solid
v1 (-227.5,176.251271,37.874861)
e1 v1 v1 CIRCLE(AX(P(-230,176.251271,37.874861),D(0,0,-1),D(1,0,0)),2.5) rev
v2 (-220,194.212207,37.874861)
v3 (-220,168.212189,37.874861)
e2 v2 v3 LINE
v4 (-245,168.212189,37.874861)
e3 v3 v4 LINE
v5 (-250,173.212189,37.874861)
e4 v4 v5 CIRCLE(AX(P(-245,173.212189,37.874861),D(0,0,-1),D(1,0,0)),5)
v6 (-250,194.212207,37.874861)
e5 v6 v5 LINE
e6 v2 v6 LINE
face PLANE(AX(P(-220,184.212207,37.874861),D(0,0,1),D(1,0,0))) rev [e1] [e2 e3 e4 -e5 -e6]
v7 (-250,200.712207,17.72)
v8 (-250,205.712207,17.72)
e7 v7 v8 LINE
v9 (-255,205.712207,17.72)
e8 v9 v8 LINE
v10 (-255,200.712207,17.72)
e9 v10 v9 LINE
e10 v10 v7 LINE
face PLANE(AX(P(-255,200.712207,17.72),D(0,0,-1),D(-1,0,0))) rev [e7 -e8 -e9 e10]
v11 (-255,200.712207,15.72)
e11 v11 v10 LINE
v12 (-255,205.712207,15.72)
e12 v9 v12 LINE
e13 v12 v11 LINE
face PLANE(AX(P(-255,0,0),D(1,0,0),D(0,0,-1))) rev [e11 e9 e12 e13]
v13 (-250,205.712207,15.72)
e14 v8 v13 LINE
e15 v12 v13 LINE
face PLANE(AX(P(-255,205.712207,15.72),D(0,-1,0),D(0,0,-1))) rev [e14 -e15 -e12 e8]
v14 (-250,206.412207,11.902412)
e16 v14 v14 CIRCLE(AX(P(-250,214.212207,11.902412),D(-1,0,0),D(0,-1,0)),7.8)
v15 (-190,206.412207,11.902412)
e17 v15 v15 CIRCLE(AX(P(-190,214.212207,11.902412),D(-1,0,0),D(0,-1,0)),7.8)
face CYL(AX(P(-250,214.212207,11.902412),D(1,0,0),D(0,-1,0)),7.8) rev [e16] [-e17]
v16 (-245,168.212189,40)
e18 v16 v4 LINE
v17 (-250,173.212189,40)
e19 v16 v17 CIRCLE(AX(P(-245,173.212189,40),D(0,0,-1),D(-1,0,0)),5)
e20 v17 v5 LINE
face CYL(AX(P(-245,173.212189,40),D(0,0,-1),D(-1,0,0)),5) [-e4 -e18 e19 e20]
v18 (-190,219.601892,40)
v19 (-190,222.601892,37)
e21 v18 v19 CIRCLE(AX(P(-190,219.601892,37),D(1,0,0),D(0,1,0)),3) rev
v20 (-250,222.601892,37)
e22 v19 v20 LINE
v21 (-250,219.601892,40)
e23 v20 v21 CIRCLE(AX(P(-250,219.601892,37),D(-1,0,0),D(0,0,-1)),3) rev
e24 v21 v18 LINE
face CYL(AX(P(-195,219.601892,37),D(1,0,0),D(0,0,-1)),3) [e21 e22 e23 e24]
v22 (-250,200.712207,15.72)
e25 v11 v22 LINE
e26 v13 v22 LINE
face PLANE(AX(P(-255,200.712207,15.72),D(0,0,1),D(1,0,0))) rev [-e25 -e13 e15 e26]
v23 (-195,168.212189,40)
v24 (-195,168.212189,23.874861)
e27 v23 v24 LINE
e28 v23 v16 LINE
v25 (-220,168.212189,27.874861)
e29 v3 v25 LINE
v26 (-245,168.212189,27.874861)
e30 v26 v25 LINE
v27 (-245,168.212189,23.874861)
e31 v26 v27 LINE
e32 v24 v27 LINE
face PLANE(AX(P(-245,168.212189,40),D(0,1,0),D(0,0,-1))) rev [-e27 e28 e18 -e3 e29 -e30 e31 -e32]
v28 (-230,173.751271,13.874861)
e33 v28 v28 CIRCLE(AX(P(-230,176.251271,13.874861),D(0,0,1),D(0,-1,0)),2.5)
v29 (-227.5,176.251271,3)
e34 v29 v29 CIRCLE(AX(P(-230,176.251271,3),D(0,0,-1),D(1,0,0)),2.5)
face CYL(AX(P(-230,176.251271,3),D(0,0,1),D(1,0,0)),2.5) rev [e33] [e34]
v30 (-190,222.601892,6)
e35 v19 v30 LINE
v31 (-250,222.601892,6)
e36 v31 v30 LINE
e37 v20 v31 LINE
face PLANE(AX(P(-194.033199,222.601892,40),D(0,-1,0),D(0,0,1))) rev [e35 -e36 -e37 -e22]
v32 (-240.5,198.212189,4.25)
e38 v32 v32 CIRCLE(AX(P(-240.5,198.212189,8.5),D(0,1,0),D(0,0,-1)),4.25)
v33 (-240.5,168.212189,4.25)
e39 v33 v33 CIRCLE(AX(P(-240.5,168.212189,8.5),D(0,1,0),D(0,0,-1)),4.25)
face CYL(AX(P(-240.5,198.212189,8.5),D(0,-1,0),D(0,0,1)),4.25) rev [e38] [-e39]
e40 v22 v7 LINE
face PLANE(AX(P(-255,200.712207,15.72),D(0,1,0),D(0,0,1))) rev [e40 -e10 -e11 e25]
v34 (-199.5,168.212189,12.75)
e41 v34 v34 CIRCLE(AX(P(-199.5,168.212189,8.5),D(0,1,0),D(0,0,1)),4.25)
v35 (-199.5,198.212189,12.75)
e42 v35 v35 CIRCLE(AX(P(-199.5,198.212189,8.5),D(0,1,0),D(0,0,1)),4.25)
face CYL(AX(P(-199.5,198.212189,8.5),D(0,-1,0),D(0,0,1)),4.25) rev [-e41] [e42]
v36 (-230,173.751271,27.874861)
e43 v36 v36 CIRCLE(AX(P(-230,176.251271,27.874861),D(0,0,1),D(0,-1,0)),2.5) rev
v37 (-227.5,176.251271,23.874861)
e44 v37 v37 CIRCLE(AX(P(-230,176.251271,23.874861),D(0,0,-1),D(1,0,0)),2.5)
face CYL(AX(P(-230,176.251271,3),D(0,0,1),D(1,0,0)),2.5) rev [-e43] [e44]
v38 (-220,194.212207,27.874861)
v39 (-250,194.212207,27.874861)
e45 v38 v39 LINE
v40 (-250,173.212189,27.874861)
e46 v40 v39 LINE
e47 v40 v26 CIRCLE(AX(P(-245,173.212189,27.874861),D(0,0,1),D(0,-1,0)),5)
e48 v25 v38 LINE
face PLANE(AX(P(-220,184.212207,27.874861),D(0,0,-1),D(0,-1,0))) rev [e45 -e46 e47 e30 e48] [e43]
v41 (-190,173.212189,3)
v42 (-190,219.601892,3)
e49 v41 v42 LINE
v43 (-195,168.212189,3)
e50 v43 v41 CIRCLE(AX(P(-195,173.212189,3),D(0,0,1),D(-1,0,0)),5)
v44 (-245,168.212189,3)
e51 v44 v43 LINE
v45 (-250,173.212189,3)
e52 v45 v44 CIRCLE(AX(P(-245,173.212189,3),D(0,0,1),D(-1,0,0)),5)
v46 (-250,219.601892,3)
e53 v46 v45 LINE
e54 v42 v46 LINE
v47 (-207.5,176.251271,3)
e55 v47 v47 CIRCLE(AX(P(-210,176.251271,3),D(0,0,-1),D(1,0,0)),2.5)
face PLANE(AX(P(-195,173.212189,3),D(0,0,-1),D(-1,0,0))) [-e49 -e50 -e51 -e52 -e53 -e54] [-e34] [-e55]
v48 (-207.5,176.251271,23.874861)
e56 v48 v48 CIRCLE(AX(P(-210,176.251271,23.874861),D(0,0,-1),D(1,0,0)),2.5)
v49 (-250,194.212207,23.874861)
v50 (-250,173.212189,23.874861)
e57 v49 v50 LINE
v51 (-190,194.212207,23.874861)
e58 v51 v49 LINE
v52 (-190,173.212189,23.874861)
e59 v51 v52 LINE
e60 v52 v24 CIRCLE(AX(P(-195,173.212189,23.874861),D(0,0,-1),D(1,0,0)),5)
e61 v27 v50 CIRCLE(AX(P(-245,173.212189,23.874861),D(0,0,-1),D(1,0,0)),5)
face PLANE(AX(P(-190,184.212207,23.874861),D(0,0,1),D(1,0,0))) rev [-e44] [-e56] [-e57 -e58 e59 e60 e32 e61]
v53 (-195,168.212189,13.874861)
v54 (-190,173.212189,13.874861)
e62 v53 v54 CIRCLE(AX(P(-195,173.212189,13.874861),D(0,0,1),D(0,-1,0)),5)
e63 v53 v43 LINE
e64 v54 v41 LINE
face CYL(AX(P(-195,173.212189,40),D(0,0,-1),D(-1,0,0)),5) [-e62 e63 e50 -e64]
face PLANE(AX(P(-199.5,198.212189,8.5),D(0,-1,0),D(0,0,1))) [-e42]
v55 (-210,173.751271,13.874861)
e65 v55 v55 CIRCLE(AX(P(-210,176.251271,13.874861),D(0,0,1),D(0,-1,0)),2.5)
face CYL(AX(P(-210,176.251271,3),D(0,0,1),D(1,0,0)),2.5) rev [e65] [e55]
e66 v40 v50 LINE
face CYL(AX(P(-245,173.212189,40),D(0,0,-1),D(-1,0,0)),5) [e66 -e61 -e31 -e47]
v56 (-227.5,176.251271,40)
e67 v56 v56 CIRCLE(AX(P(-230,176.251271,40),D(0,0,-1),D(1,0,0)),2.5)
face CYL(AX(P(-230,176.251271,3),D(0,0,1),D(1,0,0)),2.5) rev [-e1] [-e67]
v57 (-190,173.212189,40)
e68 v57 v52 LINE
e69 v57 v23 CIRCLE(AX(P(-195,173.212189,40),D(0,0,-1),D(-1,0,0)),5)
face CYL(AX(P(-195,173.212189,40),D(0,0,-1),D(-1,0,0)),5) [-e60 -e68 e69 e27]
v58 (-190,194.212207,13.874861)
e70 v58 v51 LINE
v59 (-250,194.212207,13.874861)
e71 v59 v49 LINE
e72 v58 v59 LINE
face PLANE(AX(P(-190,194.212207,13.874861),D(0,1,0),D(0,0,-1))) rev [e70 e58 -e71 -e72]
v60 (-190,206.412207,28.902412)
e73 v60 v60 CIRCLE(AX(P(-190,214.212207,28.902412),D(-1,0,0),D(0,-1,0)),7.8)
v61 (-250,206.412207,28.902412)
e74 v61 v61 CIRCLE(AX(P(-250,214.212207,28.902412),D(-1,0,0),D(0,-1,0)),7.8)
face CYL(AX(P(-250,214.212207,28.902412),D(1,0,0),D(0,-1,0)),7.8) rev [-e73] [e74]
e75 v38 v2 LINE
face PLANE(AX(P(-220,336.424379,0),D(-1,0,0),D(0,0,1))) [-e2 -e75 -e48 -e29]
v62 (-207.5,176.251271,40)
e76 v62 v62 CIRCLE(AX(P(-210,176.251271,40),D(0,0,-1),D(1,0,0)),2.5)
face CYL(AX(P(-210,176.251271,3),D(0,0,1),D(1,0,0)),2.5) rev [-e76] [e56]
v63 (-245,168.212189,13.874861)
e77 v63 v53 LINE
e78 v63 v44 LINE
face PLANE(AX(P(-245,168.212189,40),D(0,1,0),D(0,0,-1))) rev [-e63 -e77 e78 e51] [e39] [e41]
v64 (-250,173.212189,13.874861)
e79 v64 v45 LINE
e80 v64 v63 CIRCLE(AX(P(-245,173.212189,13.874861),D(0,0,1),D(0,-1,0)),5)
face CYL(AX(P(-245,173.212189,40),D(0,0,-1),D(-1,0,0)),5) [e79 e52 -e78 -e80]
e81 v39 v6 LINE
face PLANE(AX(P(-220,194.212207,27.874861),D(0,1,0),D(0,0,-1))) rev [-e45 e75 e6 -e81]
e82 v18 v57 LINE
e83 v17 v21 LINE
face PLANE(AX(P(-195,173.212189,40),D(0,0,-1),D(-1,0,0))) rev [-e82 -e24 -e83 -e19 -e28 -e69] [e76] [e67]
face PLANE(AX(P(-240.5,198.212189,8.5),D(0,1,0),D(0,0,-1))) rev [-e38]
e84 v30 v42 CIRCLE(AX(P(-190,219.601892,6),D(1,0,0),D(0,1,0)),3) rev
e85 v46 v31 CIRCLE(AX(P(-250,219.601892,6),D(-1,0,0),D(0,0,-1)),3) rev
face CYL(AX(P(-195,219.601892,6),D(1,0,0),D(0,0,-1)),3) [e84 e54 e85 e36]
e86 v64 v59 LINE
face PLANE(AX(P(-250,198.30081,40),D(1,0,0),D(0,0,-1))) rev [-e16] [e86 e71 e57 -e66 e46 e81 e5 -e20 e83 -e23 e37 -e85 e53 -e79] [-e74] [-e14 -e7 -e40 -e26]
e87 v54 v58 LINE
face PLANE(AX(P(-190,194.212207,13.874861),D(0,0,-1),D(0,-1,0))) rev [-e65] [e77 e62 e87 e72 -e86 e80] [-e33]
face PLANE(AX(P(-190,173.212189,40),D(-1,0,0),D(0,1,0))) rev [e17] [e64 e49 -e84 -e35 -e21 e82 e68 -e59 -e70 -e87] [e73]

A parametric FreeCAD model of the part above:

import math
import FreeCAD as App
import Part
import Sketcher
from FreeCAD import Vector


def edges_at(feature, points):
    """Names of the edges that pass closest to the given points."""
    edges = feature.Shape.Edges
    near = lambda p: min(range(len(edges)), key=lambda i: edges[i].distToShape(Part.Vertex(*p))[0])
    return sorted({f"Edge{near(p) + 1}" for p in points})

doc = App.newDocument("Part")
body = doc.addObject("PartDesign::Body", "Body")

sketch1 = body.newObject("Sketcher::SketchObject", "Sketch")
sketch1.AttachmentSupport = (doc.getObject("XY_Plane"), [""])
sketch1.MapMode = "FlatFace"
sketch1.addGeometry([
    Part.LineSegment(Vector(-190, 113.822487, 0), Vector(-190, 163.212189, 0)),
    Part.ArcOfCircle(Part.Circle(Vector(-195, 163.212189, 0), Vector(0, 0, 1), 5), math.radians(0), math.radians(90)),
    Part.LineSegment(Vector(-195, 168.212189, 0), Vector(-245, 168.212189, 0)),
    Part.ArcOfCircle(Part.Circle(Vector(-245, 163.212189, 0), Vector(0, 0, 1), 5), math.radians(90), math.radians(180)),
    Part.LineSegment(Vector(-250, 163.212189, 0), Vector(-250, 113.822487, 0)),
    Part.LineSegment(Vector(-250, 113.822487, 0), Vector(-190, 113.822487, 0)),
], False)
sketch1.addConstraint([
    Sketcher.Constraint("Tangent", 0, 2, 1, 1),
    Sketcher.Constraint("Tangent", 1, 2, 2, 1),
    Sketcher.Constraint("Tangent", 2, 2, 3, 1),
    Sketcher.Constraint("Tangent", 3, 2, 4, 1),
    Sketcher.Constraint("Coincident", 4, 2, 5, 1),
    Sketcher.Constraint("Coincident", 5, 2, 0, 1),
    Sketcher.Constraint("Vertical", 0),
    Sketcher.Constraint("Horizontal", 2),
    Sketcher.Constraint("Vertical", 4),
    Sketcher.Constraint("Horizontal", 5),
    Sketcher.Constraint("Equal", 1, 3),
    Sketcher.Constraint("Radius", 1, 5.0),
    Sketcher.Constraint("DistanceX", 2, 2, 2, 1, 50.0),
    Sketcher.Constraint("DistanceX", 1, 3, -1, 1, 195.0),
    Sketcher.Constraint("DistanceY", 0, 1, 0, 2, 49.389703),
    Sketcher.Constraint("DistanceY", -1, 1, 1, 3, 163.212189),
])
pad1 = body.newObject("PartDesign::Pad", "Pad")
pad1.Profile = sketch1
pad1.Length = 40

sketch2 = body.newObject("Sketcher::SketchObject", "Sketch001")
sketch2.AttachmentSupport = (doc.getObject("YZ_Plane"), [""])
sketch2.MapMode = "FlatFace"
sketch2.AttachmentOffset = App.Placement(Vector(0, 0, -190), App.Rotation())
sketch2.addGeometry([
    Part.Circle(Vector(122.212171, 11.902412, 0), Vector(0, 0, 1), 7.8),
    Part.Circle(Vector(122.212171, 28.902412, 0), Vector(0, 0, 1), 7.8),
], False)
sketch2.addConstraint([
    Sketcher.Constraint("Equal", 0, 1),
    Sketcher.Constraint("Vertical", 0, 3, 1, 3),
    Sketcher.Constraint("Diameter", 0, 15.6),
    Sketcher.Constraint("DistanceY", 0, 3, 1, 3, 17.0),
    Sketcher.Constraint("DistanceX", -1, 1, 0, 3, 122.212171),
    Sketcher.Constraint("DistanceY", -1, 1, 0, 3, 11.902412),
])
pocket1 = body.newObject("PartDesign::Pocket", "Pocket")
pocket1.Profile = sketch2
pocket1.Type = "ThroughAll"

sketch3 = body.newObject("Sketcher::SketchObject", "Sketch002")
sketch3.AttachmentSupport = (doc.getObject("XY_Plane"), [""])
sketch3.MapMode = "FlatFace"
sketch3.addGeometry([
    Part.LineSegment(Vector(-190, 163.212189, 0), Vector(-190, 113.822487, 0)),
    Part.LineSegment(Vector(-190, 113.822487, 0), Vector(-250, 113.822487, 0)),
    Part.LineSegment(Vector(-250, 113.822487, 0), Vector(-250, 163.212189, 0)),
    Part.ArcOfCircle(Part.Circle(Vector(-245, 163.212189, 0), Vector(0, 0, 1), 5), math.radians(90), math.radians(180)),
    Part.LineSegment(Vector(-245, 168.212189, 0), Vector(-195, 168.212189, 0)),
    Part.ArcOfCircle(Part.Circle(Vector(-195, 163.212189, 0), Vector(0, 0, 1), 5), math.radians(0), math.radians(90)),
], False)
sketch3.addConstraint([
    Sketcher.Constraint("Coincident", 0, 2, 1, 1),
    Sketcher.Constraint("Coincident", 1, 2, 2, 1),
    Sketcher.Constraint("Tangent", 2, 2, 3, 2),
    Sketcher.Constraint("Tangent", 3, 1, 4, 1),
    Sketcher.Constraint("Tangent", 4, 2, 5, 2),
    Sketcher.Constraint("Tangent", 5, 1, 0, 1),
    Sketcher.Constraint("Vertical", 0),
    Sketcher.Constraint("Horizontal", 1),
    Sketcher.Constraint("Vertical", 2),
    Sketcher.Constraint("Horizontal", 4),
    Sketcher.Constraint("Equal", 3, 5),
    Sketcher.Constraint("Radius", 3, 5.0),
    Sketcher.Constraint("DistanceX", 1, 2, 1, 1, 60.0),
    Sketcher.Constraint("DistanceX", 3, 3, -1, 1, 245.0),
    Sketcher.Constraint("DistanceY", 0, 2, 0, 1, 49.389703),
    Sketcher.Constraint("DistanceY", -1, 1, 3, 3, 163.212189),
])
pocket2 = body.newObject("PartDesign::Pocket", "Pocket001")
pocket2.Profile = sketch3
pocket2.Length = 3
pocket2.Reversed = True
doc.recompute()

fillet = body.newObject("PartDesign::Fillet", "Fillet")
fillet.Base = (pocket2, edges_at(pocket2, [(-220, 113.822, 40), (-220, 113.822, 3)]))
fillet.Radius = 3

sketch4 = body.newObject("Sketcher::SketchObject", "Sketch003")
sketch4.AttachmentSupport = (doc.getObject("YZ_Plane"), [""])
sketch4.MapMode = "FlatFace"
sketch4.AttachmentOffset = App.Placement(Vector(0, 0, -250), App.Rotation())
sketch4.addGeometry([
    Part.LineSegment(Vector(142.212171, 23.874861, 0), Vector(182.19152, 23.874861, 0)),
    Part.LineSegment(Vector(182.19152, 23.874861, 0), Vector(182.19152, 13.874861, 0)),
    Part.LineSegment(Vector(182.19152, 13.874861, 0), Vector(142.212171, 13.874861, 0)),
    Part.LineSegment(Vector(142.212171, 13.874861, 0), Vector(142.212171, 23.874861, 0)),
], False)
sketch4.addConstraint([
    Sketcher.Constraint("Coincident", 0, 2, 1, 1),
    Sketcher.Constraint("Coincident", 1, 2, 2, 1),
    Sketcher.Constraint("Coincident", 2, 2, 3, 1),
    Sketcher.Constraint("Coincident", 3, 2, 0, 1),
    Sketcher.Constraint("Horizontal", 0),
    Sketcher.Constraint("Vertical", 1),
    Sketcher.Constraint("Horizontal", 2),
    Sketcher.Constraint("Vertical", 3),
    Sketcher.Constraint("DistanceY", 1, 2, 1, 1, 10.0),
    Sketcher.Constraint("DistanceX", 0, 1, 0, 2, 39.979348),
    Sketcher.Constraint("DistanceX", -1, 1, 0, 2, 182.19152),
    Sketcher.Constraint("DistanceY", -1, 1, 0, 2, 23.874861),
])
pocket3 = body.newObject("PartDesign::Pocket", "Pocket002")
pocket3.Profile = sketch4
pocket3.Type = "ThroughAll"
pocket3.Reversed = True

sketch5 = body.newObject("Sketcher::SketchObject", "Sketch004")
sketch5.AttachmentSupport = (doc.getObject("XY_Plane"), [""])
sketch5.MapMode = "FlatFace"
sketch5.AttachmentOffset = App.Placement(Vector(0, 0, 40), App.Rotation())
sketch5.addGeometry([
    Part.Circle(Vector(-210, 160.173108, 0), Vector(0, 0, 1), 2.5),
    Part.Circle(Vector(-230, 160.173108, 0), Vector(0, 0, 1), 2.5),
], False)
sketch5.addConstraint([
    Sketcher.Constraint("Equal", 0, 1),
    Sketcher.Constraint("Horizontal", 0, 3, 1, 3),
    Sketcher.Constraint("Diameter", 0, 5.0),
    Sketcher.Constraint("DistanceX", 0, 3, -1, 1, 210.0),
    Sketcher.Constraint("DistanceX", 1, 3, -1, 1, 230.0),
    Sketcher.Constraint("DistanceY", -1, 1, 0, 3, 160.173108),
])
pocket4 = body.newObject("PartDesign::Pocket", "Pocket003")
pocket4.Profile = sketch5
pocket4.Type = "ThroughAll"

sketch6 = body.newObject("Sketcher::SketchObject", "Sketch005")
sketch6.AttachmentSupport = (doc.getObject("XZ_Plane"), [""])
sketch6.MapMode = "FlatFace"
sketch6.AttachmentOffset = App.Placement(Vector(0, 0, -168.212189), App.Rotation())
sketch6.addGeometry([
    Part.Circle(Vector(-199.5, 8.5, 0), Vector(0, 0, 1), 4.25),
    Part.Circle(Vector(-240.5, 8.5, 0), Vector(0, 0, 1), 4.25),
], False)
sketch6.addConstraint([
    Sketcher.Constraint("Equal", 0, 1),
    Sketcher.Constraint("Horizontal", 0, 3, 1, 3),
    Sketcher.Constraint("Diameter", 0, 8.5),
    Sketcher.Constraint("DistanceX", 1, 3, 0, 3, 41.0),
    Sketcher.Constraint("DistanceX", 0, 3, -1, 1, 199.5),
    Sketcher.Constraint("DistanceY", -1, 1, 0, 3, 8.5),
])
pocket5 = body.newObject("PartDesign::Pocket", "Pocket004")
pocket5.Profile = sketch6
pocket5.Length = 30
pocket5.Reversed = True

sketch7 = body.newObject("Sketcher::SketchObject", "Sketch006")
sketch7.AttachmentSupport = (doc.getObject("YZ_Plane"), [""])
sketch7.MapMode = "FlatFace"
sketch7.AttachmentOffset = App.Placement(Vector(0, 0, -250), App.Rotation())
sketch7.addGeometry([
    Part.LineSegment(Vector(142.212171, 27.874861, 0), Vector(142.212171, 37.874861, 0)),
    Part.LineSegment(Vector(142.212171, 37.874861, 0), Vector(170.639409, 37.874861, 0)),
    Part.LineSegment(Vector(170.639409, 37.874861, 0), Vector(170.639409, 27.874861, 0)),
    Part.LineSegment(Vector(170.639409, 27.874861, 0), Vector(142.212171, 27.874861, 0)),
], False)
sketch7.addConstraint([
    Sketcher.Constraint("Coincident", 0, 2, 1, 1),
    Sketcher.Constraint("Coincident", 1, 2, 2, 1),
    Sketcher.Constraint("Coincident", 2, 2, 3, 1),
    Sketcher.Constraint("Coincident", 3, 2, 0, 1),
    Sketcher.Constraint("Vertical", 0),
    Sketcher.Constraint("Horizontal", 1),
    Sketcher.Constraint("Vertical", 2),
    Sketcher.Constraint("Horizontal", 3),
    Sketcher.Constraint("DistanceY", 0, 1, 0, 2, 10.0),
    Sketcher.Constraint("DistanceX", 1, 1, 1, 2, 28.427238),
    Sketcher.Constraint("DistanceX", -1, 1, 0, 2, 142.212171),
    Sketcher.Constraint("DistanceY", -1, 1, 0, 2, 37.874861),
])
pocket6 = body.newObject("PartDesign::Pocket", "Pocket005")
pocket6.Profile = sketch7
pocket6.Length = 30
pocket6.Reversed = True
body2 = doc.addObject("PartDesign::Body", "Body001")
doc.recompute()

mirroring = doc.addObject("Part::Mirroring", "Mirroring")
mirroring.Source = body
mirroring.Base = Vector(-245, 168.212189, 40)
mirroring.Normal = Vector(0, -1, 0)
body2.BaseFeature = mirroring
doc.recompute()

sketch8 = body2.newObject("Sketcher::SketchObject", "Sketch007")
sketch8.AttachmentSupport = (doc.getObject("YZ_Plane001"), [""])
sketch8.MapMode = "FlatFace"
sketch8.AttachmentOffset = App.Placement(Vector(0, 0, -250), App.Rotation())
sketch8.addGeometry([
    Part.LineSegment(Vector(205.712207, 15.72, 0), Vector(200.712207, 15.72, 0)),
    Part.LineSegment(Vector(200.712207, 15.72, 0), Vector(200.712207, 17.72, 0)),
    Part.LineSegment(Vector(200.712207, 17.72, 0), Vector(205.712207, 17.72, 0)),
    Part.LineSegment(Vector(205.712207, 17.72, 0), Vector(205.712207, 15.72, 0)),
], False)
sketch8.addConstraint([
    Sketcher.Constraint("Coincident", 0, 2, 1, 1),
    Sketcher.Constraint("Coincident", 1, 2, 2, 1),
    Sketcher.Constraint("Coincident", 2, 2, 3, 1),
    Sketcher.Constraint("Coincident", 3, 2, 0, 1),
    Sketcher.Constraint("Horizontal", 0),
    Sketcher.Constraint("Vertical", 1),
    Sketcher.Constraint("Horizontal", 2),
    Sketcher.Constraint("Vertical", 3),
    Sketcher.Constraint("DistanceX", 0, 2, 0, 1, 5.0),
    Sketcher.Constraint("DistanceY", 1, 1, 1, 2, 2.0),
    Sketcher.Constraint("DistanceY", -1, 1, 0, 2, 15.72),
    Sketcher.Constraint("DistanceX", -1, 1, 0, 2, 200.712207),
])
pad2 = body2.newObject("PartDesign::Pad", "Pad001")
pad2.Profile = sketch8
pad2.Length = 5
pad2.Reversed = True
body.Visibility = False
mirroring.Visibility = False

doc.recompute()
